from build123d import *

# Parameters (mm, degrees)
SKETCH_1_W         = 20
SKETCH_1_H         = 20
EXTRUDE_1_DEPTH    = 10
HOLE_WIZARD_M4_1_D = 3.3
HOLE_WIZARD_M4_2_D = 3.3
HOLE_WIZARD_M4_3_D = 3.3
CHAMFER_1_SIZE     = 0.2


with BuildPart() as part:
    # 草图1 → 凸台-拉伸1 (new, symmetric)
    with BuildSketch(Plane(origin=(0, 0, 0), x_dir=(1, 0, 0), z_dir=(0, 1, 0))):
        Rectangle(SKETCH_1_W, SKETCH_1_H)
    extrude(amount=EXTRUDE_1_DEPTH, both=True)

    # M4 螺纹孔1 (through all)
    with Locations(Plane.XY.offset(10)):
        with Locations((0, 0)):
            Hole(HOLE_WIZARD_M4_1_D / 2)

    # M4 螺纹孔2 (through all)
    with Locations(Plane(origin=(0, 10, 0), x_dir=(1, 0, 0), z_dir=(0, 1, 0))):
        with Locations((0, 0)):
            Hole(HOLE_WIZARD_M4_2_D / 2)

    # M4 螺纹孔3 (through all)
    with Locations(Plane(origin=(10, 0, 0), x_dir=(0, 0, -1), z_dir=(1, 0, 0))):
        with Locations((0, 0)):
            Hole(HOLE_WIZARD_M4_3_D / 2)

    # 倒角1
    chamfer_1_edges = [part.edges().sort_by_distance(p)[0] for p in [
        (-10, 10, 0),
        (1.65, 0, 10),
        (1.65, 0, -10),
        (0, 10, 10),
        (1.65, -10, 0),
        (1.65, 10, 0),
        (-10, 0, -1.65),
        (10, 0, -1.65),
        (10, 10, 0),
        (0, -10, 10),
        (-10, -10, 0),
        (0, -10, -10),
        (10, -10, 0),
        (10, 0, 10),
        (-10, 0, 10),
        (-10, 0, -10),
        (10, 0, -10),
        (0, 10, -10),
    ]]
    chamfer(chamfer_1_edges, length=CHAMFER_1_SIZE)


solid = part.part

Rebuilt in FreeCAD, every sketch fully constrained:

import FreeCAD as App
import Part
import Sketcher
from FreeCAD import Vector


def edges_at(feature, points):
    """Names of the edges that pass closest to the given points."""
    edges = feature.Shape.Edges
    near = lambda p: min(range(len(edges)), key=lambda i: edges[i].distToShape(Part.Vertex(*p))[0])
    return sorted({f"Edge{near(p) + 1}" for p in points})


def add_polygon(sketch, points):
    """Adds a closed chain of lines whose ends are joined by coincident constraints."""
    first, n = sketch.GeometryCount, len(points)
    for a, b in zip(points, points[1:] + points[:1]):
        sketch.addGeometry(Part.LineSegment(App.Vector(*a, 0), App.Vector(*b, 0)), False)
    for i in range(n):
        sketch.addConstraint(Sketcher.Constraint("Coincident", first + i, 2, first + (i + 1) % n, 1))

doc = App.newDocument("Part")
body = doc.addObject("PartDesign::Body", "Body")

# Sketch on XZ plane
sketch1 = doc.addObject("Sketcher::SketchObject", "Sketch")
body.addObject(sketch1)
sketch1.AttachmentSupport = (doc.XZ_Plane, [""])
sketch1.MapMode = "FlatFace"
add_polygon(sketch1, [(-10, -10), (-10, 10), (10, 10), (10, -10)])  # lines 0-3
sketch1.addConstraint([
    Sketcher.Constraint("Vertical", 0),
    Sketcher.Constraint("Horizontal", 1),
    Sketcher.Constraint("Vertical", 2),
    Sketcher.Constraint("Horizontal", 3),
    Sketcher.Constraint("Symmetric", 0, 2, 2, 2, -1, 1),
    Sketcher.Constraint("Equal", 3, 0),
    Sketcher.Constraint("DistanceX", 1, 1, 1, 2, 20.0),
])
pad1 = doc.addObject("PartDesign::Pad", "Pad")
body.addObject(pad1)
pad1.Profile = sketch1
pad1.Length = 20
pad1.Midplane = True

# Sketch on XY plane
sketch2 = doc.addObject("Sketcher::SketchObject", "Sketch001")
body.addObject(sketch2)
sketch2.AttachmentSupport = (doc.XY_Plane, [""])
sketch2.MapMode = "FlatFace"
sketch2.AttachmentOffset = App.Placement(Vector(0, 0, 10), App.Rotation())
sketch2.addGeometry(Part.Circle(Vector(0, 0, 0), Vector(0, 0, 1), 1.65), False)
sketch2.addConstraint([
    Sketcher.Constraint("Coincident", 0, 3, -1, 1),
    Sketcher.Constraint("Diameter", 0, 3.3),
])
doc.recompute()
hole = doc.addObject("PartDesign::Hole", "Hole")
body.addObject(hole)
hole.Profile = sketch2
hole.ThreadType = "None"
hole.Diameter = 3.3
hole.DepthType = "ThroughAll"

# Sketch on XZ plane
sketch3 = doc.addObject("Sketcher::SketchObject", "Sketch002")
body.addObject(sketch3)
sketch3.AttachmentSupport = (doc.XZ_Plane, [""])
sketch3.MapMode = "FlatFace"
sketch3.AttachmentOffset = App.Placement(Vector(0, 0, -10), App.Rotation())
sketch3.addGeometry(Part.Circle(Vector(0, 0, 0), Vector(0, 0, 1), 1.65), False)
sketch3.addConstraint([
    Sketcher.Constraint("Coincident", 0, 3, -1, 1),
    Sketcher.Constraint("Diameter", 0, 3.3),
])
doc.recompute()
hole2 = doc.addObject("PartDesign::Hole", "Hole001")
body.addObject(hole2)
hole2.Profile = sketch3
hole2.ThreadType = "None"
hole2.Diameter = 3.3
hole2.DepthType = "ThroughAll"
hole2.Reversed = True

# Sketch on YZ plane
sketch4 = doc.addObject("Sketcher::SketchObject", "Sketch003")
body.addObject(sketch4)
sketch4.AttachmentSupport = (doc.YZ_Plane, [""])
sketch4.MapMode = "FlatFace"
sketch4.AttachmentOffset = App.Placement(Vector(0, 0, 10), App.Rotation())
sketch4.addGeometry(Part.Circle(Vector(0, 0, 0), Vector(0, 0, 1), 1.65), False)
sketch4.addConstraint([
    Sketcher.Constraint("Coincident", 0, 3, -1, 1),
    Sketcher.Constraint("Diameter", 0, 3.3),
])
doc.recompute()
hole3 = doc.addObject("PartDesign::Hole", "Hole002")
body.addObject(hole3)
hole3.Profile = sketch4
hole3.ThreadType = "None"
hole3.Diameter = 3.3
hole3.DepthType = "ThroughAll"
doc.recompute()

chamfer = doc.addObject("PartDesign::Chamfer", "Chamfer")
body.addObject(chamfer)
chamfer.Base = (hole3, edges_at(hole3, [
    (-10, 10, 0),
    (1.65, 0, 10),
    (1.65, 0, -10),
    (0, 10, 10),
    (1.65, -10, 0),
    (1.65, 10, 0),
    (-10, 0, -1.65),
    (10, 0, -1.65),
    (10, 10, 0),
    (0, -10, 10),
    (-10, -10, 0),
    (0, -10, -10),
    (10, -10, 0),
    (10, 0, 10),
    (-10, 0, 10),
    (-10, 0, -10),
    (10, 0, -10),
    (0, 10, -10),
]))
chamfer.Size = 0.2

doc.recompute()
